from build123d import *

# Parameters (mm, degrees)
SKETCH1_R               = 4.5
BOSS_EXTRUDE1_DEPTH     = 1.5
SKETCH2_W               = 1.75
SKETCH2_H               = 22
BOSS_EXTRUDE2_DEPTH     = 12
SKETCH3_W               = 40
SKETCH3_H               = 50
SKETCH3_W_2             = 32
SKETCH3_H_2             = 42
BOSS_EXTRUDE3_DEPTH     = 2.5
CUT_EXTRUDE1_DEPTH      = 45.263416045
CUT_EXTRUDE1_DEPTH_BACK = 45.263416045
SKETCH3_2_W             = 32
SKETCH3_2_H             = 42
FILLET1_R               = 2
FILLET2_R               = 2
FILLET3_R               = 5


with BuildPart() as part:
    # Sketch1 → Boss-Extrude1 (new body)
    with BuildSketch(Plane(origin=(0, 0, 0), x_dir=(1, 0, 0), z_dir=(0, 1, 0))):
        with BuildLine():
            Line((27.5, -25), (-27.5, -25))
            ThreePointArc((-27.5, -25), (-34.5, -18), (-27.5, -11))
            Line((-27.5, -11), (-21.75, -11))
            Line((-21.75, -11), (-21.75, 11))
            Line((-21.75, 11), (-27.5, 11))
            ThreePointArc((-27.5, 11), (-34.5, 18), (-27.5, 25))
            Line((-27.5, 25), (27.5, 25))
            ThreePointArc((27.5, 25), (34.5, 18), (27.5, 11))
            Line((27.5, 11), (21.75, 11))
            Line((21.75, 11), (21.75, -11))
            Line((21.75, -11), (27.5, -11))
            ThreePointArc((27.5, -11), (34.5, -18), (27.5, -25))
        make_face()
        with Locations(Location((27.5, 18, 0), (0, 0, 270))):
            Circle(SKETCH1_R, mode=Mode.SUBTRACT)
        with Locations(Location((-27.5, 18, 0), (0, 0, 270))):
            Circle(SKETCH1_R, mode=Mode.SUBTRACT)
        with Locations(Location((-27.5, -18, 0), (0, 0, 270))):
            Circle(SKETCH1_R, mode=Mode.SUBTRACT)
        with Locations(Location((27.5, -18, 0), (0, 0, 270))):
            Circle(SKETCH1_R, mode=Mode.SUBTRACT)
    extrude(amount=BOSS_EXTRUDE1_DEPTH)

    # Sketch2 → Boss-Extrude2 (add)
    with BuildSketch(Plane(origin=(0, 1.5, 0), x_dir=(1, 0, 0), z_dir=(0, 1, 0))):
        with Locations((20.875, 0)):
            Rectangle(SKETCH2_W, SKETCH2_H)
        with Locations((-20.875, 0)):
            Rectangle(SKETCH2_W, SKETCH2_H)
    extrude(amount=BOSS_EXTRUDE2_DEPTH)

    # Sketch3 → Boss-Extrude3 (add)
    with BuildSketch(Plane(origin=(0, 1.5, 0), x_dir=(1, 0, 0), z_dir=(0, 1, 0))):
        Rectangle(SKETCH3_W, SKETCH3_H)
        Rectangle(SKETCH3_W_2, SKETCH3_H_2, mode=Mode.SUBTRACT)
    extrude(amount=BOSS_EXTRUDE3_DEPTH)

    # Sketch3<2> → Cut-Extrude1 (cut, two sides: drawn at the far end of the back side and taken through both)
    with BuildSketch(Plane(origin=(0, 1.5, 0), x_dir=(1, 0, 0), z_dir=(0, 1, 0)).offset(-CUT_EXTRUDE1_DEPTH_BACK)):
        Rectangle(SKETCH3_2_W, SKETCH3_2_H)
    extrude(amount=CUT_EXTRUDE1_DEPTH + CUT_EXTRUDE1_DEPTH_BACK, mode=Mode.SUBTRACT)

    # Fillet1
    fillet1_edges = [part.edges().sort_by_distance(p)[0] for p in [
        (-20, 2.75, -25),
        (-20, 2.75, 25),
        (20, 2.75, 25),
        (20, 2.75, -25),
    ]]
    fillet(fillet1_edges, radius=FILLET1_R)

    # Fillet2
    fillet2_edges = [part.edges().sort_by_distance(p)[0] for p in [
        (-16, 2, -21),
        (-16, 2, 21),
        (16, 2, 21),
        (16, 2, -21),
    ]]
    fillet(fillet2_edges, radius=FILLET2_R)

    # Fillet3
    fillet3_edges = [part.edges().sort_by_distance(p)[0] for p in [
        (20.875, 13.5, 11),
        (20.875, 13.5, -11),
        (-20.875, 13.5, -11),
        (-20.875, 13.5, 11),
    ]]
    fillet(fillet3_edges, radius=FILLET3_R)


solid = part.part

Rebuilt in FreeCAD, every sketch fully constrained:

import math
import FreeCAD as App
import Part
import Sketcher
from FreeCAD import Vector


def edges_at(feature, points):
    """Names of the edges that pass closest to the given points."""
    edges = feature.Shape.Edges
    near = lambda p: min(range(len(edges)), key=lambda i: edges[i].distToShape(Part.Vertex(*p))[0])
    return sorted({f"Edge{near(p) + 1}" for p in points})


def add_polygon(sketch, points):
    """Adds a closed chain of lines whose ends are joined by coincident constraints."""
    first, n = sketch.GeometryCount, len(points)
    for a, b in zip(points, points[1:] + points[:1]):
        sketch.addGeometry(Part.LineSegment(App.Vector(*a, 0), App.Vector(*b, 0)), False)
    for i in range(n):
        sketch.addConstraint(Sketcher.Constraint("Coincident", first + i, 2, first + (i + 1) % n, 1))

doc = App.newDocument("Part")
body = doc.addObject("PartDesign::Body", "Body")

# Sketch on XZ plane
sketch1 = body.newObject("Sketcher::SketchObject", "Sketch")
sketch1.AttachmentSupport = (doc.getObject("XZ_Plane"), [""])
sketch1.MapMode = "FlatFace"
sketch1.addGeometry([
    Part.LineSegment(Vector(-27.5, 25, 0), Vector(27.5, 25, 0)),  # 0
    Part.ArcOfCircle(Part.Circle(Vector(27.5, 18, 0), Vector(0, 0, 1), 7), math.radians(-90), math.radians(90)),  # 1
    Part.LineSegment(Vector(27.5, 11, 0), Vector(21.8, 11, 0)),  # 2
    Part.LineSegment(Vector(21.8, 11, 0), Vector(21.8, -11, 0)),  # 3
    Part.LineSegment(Vector(21.8, -11, 0), Vector(27.5, -11, 0)),  # 4
    Part.ArcOfCircle(Part.Circle(Vector(27.5, -18, 0), Vector(0, 0, 1), 7), math.radians(-90), math.radians(90)),  # 5
    Part.LineSegment(Vector(27.5, -25, 0), Vector(-27.5, -25, 0)),  # 6
    Part.ArcOfCircle(Part.Circle(Vector(-27.5, -18, 0), Vector(0, 0, 1), 7), math.radians(90), math.radians(270)),  # 7
    Part.LineSegment(Vector(-27.5, -11, 0), Vector(-21.8, -11, 0)),  # 8
    Part.LineSegment(Vector(-21.8, -11, 0), Vector(-21.8, 11, 0)),  # 9
    Part.LineSegment(Vector(-21.8, 11, 0), Vector(-27.5, 11, 0)),  # 10
    Part.ArcOfCircle(Part.Circle(Vector(-27.5, 18, 0), Vector(0, 0, 1), 7), math.radians(90), math.radians(270)),  # 11
    Part.Circle(Vector(27.5, 18, 0), Vector(0, 0, 1), 4.5),  # 12
    Part.Circle(Vector(-27.5, 18, 0), Vector(0, 0, 1), 4.5),  # 13
    Part.Circle(Vector(27.5, -18, 0), Vector(0, 0, 1), 4.5),  # 14
    Part.Circle(Vector(-27.5, -18, 0), Vector(0, 0, 1), 4.5),  # 15
], False)
sketch1.addConstraint([
    Sketcher.Constraint("Tangent", 0, 2, 1, 2),
    Sketcher.Constraint("Tangent", 1, 1, 2, 1),
    Sketcher.Constraint("Coincident", 2, 2, 3, 1),
    Sketcher.Constraint("Coincident", 3, 2, 4, 1),
    Sketcher.Constraint("Tangent", 4, 2, 5, 2),
    Sketcher.Constraint("Tangent", 5, 1, 6, 1),
    Sketcher.Constraint("Tangent", 6, 2, 7, 2),
    Sketcher.Constraint("Tangent", 7, 1, 8, 1),
    Sketcher.Constraint("Coincident", 8, 2, 9, 1),
    Sketcher.Constraint("Coincident", 9, 2, 10, 1),
    Sketcher.Constraint("Tangent", 10, 2, 11, 2),
    Sketcher.Constraint("Tangent", 11, 1, 0, 1),
    Sketcher.Constraint("Horizontal", 0),
    Sketcher.Constraint("Horizontal", 2),
    Sketcher.Constraint("Vertical", 3),
    Sketcher.Constraint("Horizontal", 4),
    Sketcher.Constraint("Horizontal", 6),
    Sketcher.Constraint("Horizontal", 8),
    Sketcher.Constraint("Vertical", 9),
    Sketcher.Constraint("Horizontal", 10),
    Sketcher.Constraint("Coincident", 12, 3, 1, 3),
    Sketcher.Constraint("Coincident", 13, 3, 11, 3),
    Sketcher.Constraint("Coincident", 14, 3, 5, 3),
    Sketcher.Constraint("Coincident", 15, 3, 7, 3),
    Sketcher.Constraint("Equal", 1, 5),
    Sketcher.Constraint("Equal", 5, 7),
    Sketcher.Constraint("Equal", 7, 11),
    Sketcher.Constraint("Equal", 12, 13),
    Sketcher.Constraint("Equal", 13, 14),
    Sketcher.Constraint("Equal", 14, 15),
    Sketcher.Constraint("Symmetric", 1, 3, 7, 3, -1, 1),
    Sketcher.Constraint("Vertical", 1, 3, 5, 3),
    Sketcher.Constraint("Vertical", 7, 3, 11, 3),
    Sketcher.Constraint("Equal", 4, 8),
    Sketcher.Constraint("Diameter", 12, 9.0),
    Sketcher.Constraint("Radius", 1, 7.0),
    Sketcher.Constraint("DistanceX", 0, 1, 0, 2, 55.0),
    Sketcher.Constraint("DistanceY", 3, 2, 3, 1, 22.0),
    Sketcher.Constraint("DistanceX", 2, 2, 2, 1, 5.75),
])
pad1 = body.newObject("PartDesign::Pad", "Pad")
pad1.Profile = sketch1
pad1.Length = 1.5
pad1.Reversed = True

# Sketch on XZ plane
sketch2 = body.newObject("Sketcher::SketchObject", "Sketch001")
sketch2.AttachmentSupport = (doc.getObject("XZ_Plane"), [""])
sketch2.MapMode = "FlatFace"
sketch2.AttachmentOffset = App.Placement(Vector(0, 0, -1.5), App.Rotation())
add_polygon(sketch2, [(20, -11), (20, 11), (21.8, 11), (21.8, -11)])  # lines 0-3
add_polygon(sketch2, [(-21.8, -11), (-21.8, 11), (-20, 11), (-20, -11)])  # lines 4-7
sketch2.addConstraint([
    Sketcher.Constraint("Vertical", 0),
    Sketcher.Constraint("Horizontal", 1),
    Sketcher.Constraint("Vertical", 2),
    Sketcher.Constraint("Horizontal", 3),
    Sketcher.Constraint("Vertical", 4),
    Sketcher.Constraint("Horizontal", 5),
    Sketcher.Constraint("Vertical", 6),
    Sketcher.Constraint("Horizontal", 7),
    Sketcher.Constraint("Symmetric", 2, 2, 4, 2, -1, 1),
    Sketcher.Constraint("Symmetric", 0, 2, 6, 2, -1, 1),
    Sketcher.Constraint("Horizontal", 1, 2, 4, 2),
    Sketcher.Constraint("DistanceY", 0, 1, 0, 2, 22.0),
    Sketcher.Constraint("DistanceX", -1, 1, 0, 2, 20.0),
    Sketcher.Constraint("DistanceX", 1, 1, 1, 2, 1.75),
])
pad2 = body.newObject("PartDesign::Pad", "Pad001")
pad2.Profile = sketch2
pad2.Length = 12
pad2.Reversed = True

# Sketch on XZ plane
sketch3 = body.newObject("Sketcher::SketchObject", "Sketch002")
sketch3.AttachmentSupport = (doc.getObject("XZ_Plane"), [""])
sketch3.MapMode = "FlatFace"
sketch3.AttachmentOffset = App.Placement(Vector(0, 0, -1.5), App.Rotation())
add_polygon(sketch3, [(-20, -25), (-20, 25), (20, 25), (20, -25)])  # lines 0-3
add_polygon(sketch3, [(16, 21), (-16, 21), (-16, -21), (16, -21)])  # lines 4-7
sketch3.addConstraint([
    Sketcher.Constraint("Vertical", 0),
    Sketcher.Constraint("Horizontal", 1),
    Sketcher.Constraint("Vertical", 2),
    Sketcher.Constraint("Horizontal", 3),
    Sketcher.Constraint("Horizontal", 4),
    Sketcher.Constraint("Vertical", 5),
    Sketcher.Constraint("Horizontal", 6),
    Sketcher.Constraint("Vertical", 7),
    Sketcher.Constraint("Symmetric", 0, 2, 2, 2, -1, 1),
    Sketcher.Constraint("Symmetric", 4, 2, 6, 2, -1, 1),
    Sketcher.Constraint("DistanceX", 1, 1, 1, 2, 40.0),
    Sketcher.Constraint("DistanceX", 4, 2, 4, 1, 32.0),
    Sketcher.Constraint("DistanceY", 0, 1, 0, 2, 50.0),
    Sketcher.Constraint("DistanceY", 5, 2, 5, 1, 42.0),
])
pad3 = body.newObject("PartDesign::Pad", "Pad002")
pad3.Profile = sketch3
pad3.Length = 2.5
pad3.Reversed = True

# Sketch on XZ plane
sketch4 = body.newObject("Sketcher::SketchObject", "Sketch003")
sketch4.AttachmentSupport = (doc.getObject("XZ_Plane"), [""])
sketch4.MapMode = "FlatFace"
sketch4.AttachmentOffset = App.Placement(Vector(0, 0, -1.5), App.Rotation())
add_polygon(sketch4, [(-16, -21), (-16, 21), (16, 21), (16, -21)])  # lines 0-3
sketch4.addConstraint([
    Sketcher.Constraint("Vertical", 0),
    Sketcher.Constraint("Horizontal", 1),
    Sketcher.Constraint("Vertical", 2),
    Sketcher.Constraint("Horizontal", 3),
    Sketcher.Constraint("Symmetric", 0, 2, 2, 2, -1, 1),
    Sketcher.Constraint("DistanceX", 1, 1, 1, 2, 32.0),
    Sketcher.Constraint("DistanceY", 0, 1, 0, 2, 42.0),
])
pocket1 = body.newObject("PartDesign::Pocket", "Pocket")
pocket1.Profile = sketch4
pocket1.Type = "ThroughAll"
pocket1.Midplane = True
doc.recompute()

fillet = body.newObject("PartDesign::Fillet", "Fillet")
fillet.Base = (pocket1, edges_at(pocket1, [
    (-20, 2.75, -25),
    (-20, 2.75, 25),
    (20, 2.75, 25),
    (20, 2.75, -25),
]))
fillet.Radius = 2
doc.recompute()

fillet2 = body.newObject("PartDesign::Fillet", "Fillet001")
fillet2.Base = (fillet, edges_at(fillet, [
    (-16, 2, -21),
    (-16, 2, 21),
    (16, 2, 21),
    (16, 2, -21),
]))
fillet2.Radius = 2
doc.recompute()

fillet3 = body.newObject("PartDesign::Fillet", "Fillet002")
fillet3.Base = (fillet2, edges_at(fillet2, [
    (20.875, 13.5, 11),
    (20.875, 13.5, -11),
    (-20.875, 13.5, -11),
    (-20.875, 13.5, 11),
]))
fillet3.Radius = 5

doc.recompute()
